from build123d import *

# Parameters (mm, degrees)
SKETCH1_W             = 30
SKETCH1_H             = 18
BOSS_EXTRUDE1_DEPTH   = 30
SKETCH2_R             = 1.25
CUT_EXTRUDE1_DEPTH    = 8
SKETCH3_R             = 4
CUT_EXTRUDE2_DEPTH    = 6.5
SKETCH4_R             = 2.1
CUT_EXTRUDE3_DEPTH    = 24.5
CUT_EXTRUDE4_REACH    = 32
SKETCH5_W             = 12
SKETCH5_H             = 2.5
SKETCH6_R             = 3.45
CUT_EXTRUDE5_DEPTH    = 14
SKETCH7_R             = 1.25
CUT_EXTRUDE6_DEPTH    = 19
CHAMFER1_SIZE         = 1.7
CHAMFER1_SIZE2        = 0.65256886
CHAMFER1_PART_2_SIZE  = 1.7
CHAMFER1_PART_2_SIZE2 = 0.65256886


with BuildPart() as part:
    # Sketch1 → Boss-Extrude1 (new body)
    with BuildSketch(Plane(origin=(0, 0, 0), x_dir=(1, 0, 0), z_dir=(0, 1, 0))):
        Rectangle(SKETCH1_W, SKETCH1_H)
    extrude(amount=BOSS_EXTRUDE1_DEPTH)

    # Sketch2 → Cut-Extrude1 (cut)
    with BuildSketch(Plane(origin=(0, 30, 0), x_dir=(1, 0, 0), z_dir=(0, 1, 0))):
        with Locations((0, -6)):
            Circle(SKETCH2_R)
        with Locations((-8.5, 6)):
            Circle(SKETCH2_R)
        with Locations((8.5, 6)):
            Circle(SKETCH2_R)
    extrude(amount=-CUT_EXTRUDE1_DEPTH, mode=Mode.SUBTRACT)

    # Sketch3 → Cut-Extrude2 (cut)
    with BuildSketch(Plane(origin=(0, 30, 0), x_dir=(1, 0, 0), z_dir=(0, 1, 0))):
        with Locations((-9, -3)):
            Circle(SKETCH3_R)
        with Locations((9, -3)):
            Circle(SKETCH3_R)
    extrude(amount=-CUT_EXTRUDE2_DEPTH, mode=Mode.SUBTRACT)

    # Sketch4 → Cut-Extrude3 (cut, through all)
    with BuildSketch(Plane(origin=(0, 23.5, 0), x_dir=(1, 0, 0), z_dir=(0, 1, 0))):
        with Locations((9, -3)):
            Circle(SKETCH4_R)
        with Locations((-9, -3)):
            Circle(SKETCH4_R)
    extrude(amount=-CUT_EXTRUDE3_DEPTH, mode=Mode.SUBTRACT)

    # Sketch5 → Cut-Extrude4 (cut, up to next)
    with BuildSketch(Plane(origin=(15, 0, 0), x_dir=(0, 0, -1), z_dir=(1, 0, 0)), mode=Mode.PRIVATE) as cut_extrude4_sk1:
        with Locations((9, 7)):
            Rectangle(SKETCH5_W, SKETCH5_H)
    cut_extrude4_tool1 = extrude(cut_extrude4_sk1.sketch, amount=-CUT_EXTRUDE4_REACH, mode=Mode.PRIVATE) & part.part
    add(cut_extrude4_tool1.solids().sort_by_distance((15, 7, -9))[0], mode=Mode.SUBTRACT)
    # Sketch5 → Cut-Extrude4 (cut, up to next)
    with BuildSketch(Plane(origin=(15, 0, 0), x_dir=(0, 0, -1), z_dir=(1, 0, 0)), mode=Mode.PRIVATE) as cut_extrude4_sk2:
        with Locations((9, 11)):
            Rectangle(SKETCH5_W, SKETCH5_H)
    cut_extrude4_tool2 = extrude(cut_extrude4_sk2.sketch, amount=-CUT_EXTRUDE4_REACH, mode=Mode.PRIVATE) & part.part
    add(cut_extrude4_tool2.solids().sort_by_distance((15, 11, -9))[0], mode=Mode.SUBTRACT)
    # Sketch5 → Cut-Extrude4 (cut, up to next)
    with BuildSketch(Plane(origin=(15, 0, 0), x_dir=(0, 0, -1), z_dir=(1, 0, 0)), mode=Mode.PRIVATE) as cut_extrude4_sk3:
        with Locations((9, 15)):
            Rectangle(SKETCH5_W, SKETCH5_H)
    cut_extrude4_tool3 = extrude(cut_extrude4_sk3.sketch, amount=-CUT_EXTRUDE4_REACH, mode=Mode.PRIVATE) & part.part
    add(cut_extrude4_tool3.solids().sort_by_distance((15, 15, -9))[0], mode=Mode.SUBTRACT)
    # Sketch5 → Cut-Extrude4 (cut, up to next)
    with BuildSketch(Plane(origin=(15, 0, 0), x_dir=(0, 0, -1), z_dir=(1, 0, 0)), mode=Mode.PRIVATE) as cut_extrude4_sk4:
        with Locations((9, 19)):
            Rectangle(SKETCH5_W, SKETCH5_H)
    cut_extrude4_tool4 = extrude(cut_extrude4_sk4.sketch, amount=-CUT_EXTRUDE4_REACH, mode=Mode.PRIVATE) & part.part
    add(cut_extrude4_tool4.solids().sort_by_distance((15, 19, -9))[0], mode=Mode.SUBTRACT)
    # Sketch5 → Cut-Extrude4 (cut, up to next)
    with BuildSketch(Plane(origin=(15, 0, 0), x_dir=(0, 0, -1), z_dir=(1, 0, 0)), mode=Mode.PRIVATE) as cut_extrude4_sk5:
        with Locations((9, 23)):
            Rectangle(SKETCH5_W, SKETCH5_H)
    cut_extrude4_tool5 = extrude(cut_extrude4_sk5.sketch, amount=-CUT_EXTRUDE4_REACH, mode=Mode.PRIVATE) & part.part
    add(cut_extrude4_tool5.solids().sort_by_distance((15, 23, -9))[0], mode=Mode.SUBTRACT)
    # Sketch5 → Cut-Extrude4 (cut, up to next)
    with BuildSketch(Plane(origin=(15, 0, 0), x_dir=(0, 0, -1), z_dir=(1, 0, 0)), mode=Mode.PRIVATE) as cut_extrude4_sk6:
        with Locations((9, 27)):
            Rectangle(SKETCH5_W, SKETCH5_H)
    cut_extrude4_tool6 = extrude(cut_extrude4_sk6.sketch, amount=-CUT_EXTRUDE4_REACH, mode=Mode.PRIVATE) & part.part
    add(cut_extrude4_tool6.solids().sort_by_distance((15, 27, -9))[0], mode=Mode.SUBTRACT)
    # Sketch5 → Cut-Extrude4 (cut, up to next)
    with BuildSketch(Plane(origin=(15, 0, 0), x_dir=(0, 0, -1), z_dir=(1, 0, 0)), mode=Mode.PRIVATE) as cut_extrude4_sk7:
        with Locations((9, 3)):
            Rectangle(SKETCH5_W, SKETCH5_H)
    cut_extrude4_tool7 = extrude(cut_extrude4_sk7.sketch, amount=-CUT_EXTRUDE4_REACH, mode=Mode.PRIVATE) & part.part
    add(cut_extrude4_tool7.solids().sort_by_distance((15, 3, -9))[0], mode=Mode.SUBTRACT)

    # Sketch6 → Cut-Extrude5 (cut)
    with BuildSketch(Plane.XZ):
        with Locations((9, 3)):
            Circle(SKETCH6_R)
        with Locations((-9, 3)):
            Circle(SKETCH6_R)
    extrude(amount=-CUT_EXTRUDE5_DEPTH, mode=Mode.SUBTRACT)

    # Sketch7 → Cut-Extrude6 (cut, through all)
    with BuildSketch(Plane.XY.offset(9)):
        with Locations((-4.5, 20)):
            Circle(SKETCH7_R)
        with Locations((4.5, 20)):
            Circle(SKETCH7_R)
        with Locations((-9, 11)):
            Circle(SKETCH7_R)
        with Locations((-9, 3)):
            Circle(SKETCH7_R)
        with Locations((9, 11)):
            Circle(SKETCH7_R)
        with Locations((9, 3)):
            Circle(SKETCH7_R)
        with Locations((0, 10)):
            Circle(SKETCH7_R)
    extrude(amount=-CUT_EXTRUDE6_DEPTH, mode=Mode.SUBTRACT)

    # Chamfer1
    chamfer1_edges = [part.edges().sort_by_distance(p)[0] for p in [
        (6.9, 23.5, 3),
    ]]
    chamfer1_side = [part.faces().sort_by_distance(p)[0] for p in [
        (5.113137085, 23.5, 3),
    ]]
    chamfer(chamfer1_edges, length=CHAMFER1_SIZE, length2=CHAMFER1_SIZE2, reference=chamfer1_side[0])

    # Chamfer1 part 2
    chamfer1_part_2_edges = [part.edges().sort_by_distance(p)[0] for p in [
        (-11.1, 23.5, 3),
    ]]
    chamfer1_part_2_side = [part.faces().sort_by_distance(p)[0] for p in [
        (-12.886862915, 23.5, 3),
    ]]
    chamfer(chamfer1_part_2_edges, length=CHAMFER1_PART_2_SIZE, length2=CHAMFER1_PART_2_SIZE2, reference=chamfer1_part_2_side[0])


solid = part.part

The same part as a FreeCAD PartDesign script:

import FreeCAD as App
import Part
import Sketcher
from FreeCAD import Vector


def edges_at(feature, points):
    """Names of the edges that pass closest to the given points."""
    edges = feature.Shape.Edges
    near = lambda p: min(range(len(edges)), key=lambda i: edges[i].distToShape(Part.Vertex(*p))[0])
    return sorted({f"Edge{near(p) + 1}" for p in points})

doc = App.newDocument("Part")
body = doc.addObject("PartDesign::Body", "Body")

sketch1 = body.newObject("Sketcher::SketchObject", "Sketch")
sketch1.AttachmentSupport = (doc.getObject("XZ_Plane"), [""])
sketch1.MapMode = "FlatFace"
sketch1.addGeometry([
    Part.LineSegment(Vector(-15, -9, 0), Vector(-15, 9, 0)),
    Part.LineSegment(Vector(-15, 9, 0), Vector(15, 9, 0)),
    Part.LineSegment(Vector(15, 9, 0), Vector(15, -9, 0)),
    Part.LineSegment(Vector(15, -9, 0), Vector(-15, -9, 0)),
], False)
sketch1.addConstraint([
    Sketcher.Constraint("Coincident", 0, 2, 1, 1),
    Sketcher.Constraint("Coincident", 1, 2, 2, 1),
    Sketcher.Constraint("Coincident", 2, 2, 3, 1),
    Sketcher.Constraint("Coincident", 3, 2, 0, 1),
    Sketcher.Constraint("Vertical", 0),
    Sketcher.Constraint("Horizontal", 1),
    Sketcher.Constraint("Vertical", 2),
    Sketcher.Constraint("Horizontal", 3),
    Sketcher.Constraint("Symmetric", 0, 2, 2, 2, -1, 1),
    Sketcher.Constraint("DistanceX", 1, 1, 1, 2, 30.0),
    Sketcher.Constraint("DistanceY", 0, 1, 0, 2, 18.0),
])
pad1 = body.newObject("PartDesign::Pad", "Pad")
pad1.Profile = sketch1
pad1.Length = 30
pad1.Reversed = True

sketch2 = body.newObject("Sketcher::SketchObject", "Sketch001")
sketch2.AttachmentSupport = (doc.getObject("XZ_Plane"), [""])
sketch2.MapMode = "FlatFace"
sketch2.AttachmentOffset = App.Placement(Vector(0, 0, -30), App.Rotation())
sketch2.addGeometry([
    Part.Circle(Vector(0, 6, 0), Vector(0, 0, 1), 1.2),
    Part.Circle(Vector(-8.5, -6, 0), Vector(0, 0, 1), 1.2),
    Part.Circle(Vector(8.5, -6, 0), Vector(0, 0, 1), 1.2),
], False)
sketch2.addConstraint([
    Sketcher.Constraint("Equal", 0, 1),
    Sketcher.Constraint("Equal", 1, 2),
    Sketcher.Constraint("Symmetric", 1, 3, 2, 3, -2),
    Sketcher.Constraint("PointOnObject", 0, 3, -2),
    Sketcher.Constraint("Diameter", 0, 2.5),
    Sketcher.Constraint("DistanceY", -1, 1, 0, 3, 6.0),
    Sketcher.Constraint("DistanceY", 1, 3, -1, 1, 6.0),
    Sketcher.Constraint("DistanceX", 1, 3, 2, 3, 17.0),
])
pocket1 = body.newObject("PartDesign::Pocket", "Pocket")
pocket1.Profile = sketch2
pocket1.Length = 8
pocket1.Reversed = True

sketch3 = body.newObject("Sketcher::SketchObject", "Sketch002")
sketch3.AttachmentSupport = (doc.getObject("XZ_Plane"), [""])
sketch3.MapMode = "FlatFace"
sketch3.AttachmentOffset = App.Placement(Vector(0, 0, -30), App.Rotation())
sketch3.addGeometry([
    Part.Circle(Vector(-9, 3, 0), Vector(0, 0, 1), 4),
    Part.Circle(Vector(9, 3, 0), Vector(0, 0, 1), 4),
], False)
sketch3.addConstraint([
    Sketcher.Constraint("Equal", 0, 1),
    Sketcher.Constraint("Symmetric", 0, 3, 1, 3, -2),
    Sketcher.Constraint("Diameter", 0, 8.0),
    Sketcher.Constraint("DistanceX", 0, 3, -1, 1, 9.0),
    Sketcher.Constraint("DistanceY", -1, 1, 0, 3, 3.0),
])
pocket2 = body.newObject("PartDesign::Pocket", "Pocket001")
pocket2.Profile = sketch3
pocket2.Length = 6.5
pocket2.Reversed = True

sketch4 = body.newObject("Sketcher::SketchObject", "Sketch003")
sketch4.AttachmentSupport = (doc.getObject("XZ_Plane"), [""])
sketch4.MapMode = "FlatFace"
sketch4.AttachmentOffset = App.Placement(Vector(0, 0, -23.5), App.Rotation())
sketch4.addGeometry([
    Part.Circle(Vector(9, 3, 0), Vector(0, 0, 1), 2.1),
    Part.Circle(Vector(-9, 3, 0), Vector(0, 0, 1), 2.1),
], False)
sketch4.addConstraint([
    Sketcher.Constraint("Equal", 0, 1),
    Sketcher.Constraint("Symmetric", 0, 3, 1, 3, -2),
    Sketcher.Constraint("Diameter", 0, 4.2),
    Sketcher.Constraint("DistanceX", -1, 1, 0, 3, 9.0),
    Sketcher.Constraint("DistanceY", -1, 1, 0, 3, 3.0),
])
pocket3 = body.newObject("PartDesign::Pocket", "Pocket002")
pocket3.Profile = sketch4
pocket3.Type = "ThroughAll"
pocket3.Reversed = True

sketch5 = body.newObject("Sketcher::SketchObject", "Sketch004")
sketch5.AttachmentSupport = (doc.getObject("YZ_Plane"), [""])
sketch5.MapMode = "FlatFace"
sketch5.AttachmentOffset = App.Placement(Vector(0, 0, 15), App.Rotation())
sketch5.addGeometry([
    Part.LineSegment(Vector(8.2, -3, 0), Vector(5.8, -3, 0)),
    Part.LineSegment(Vector(5.8, -3, 0), Vector(5.8, -15, 0)),
    Part.LineSegment(Vector(5.8, -15, 0), Vector(8.2, -15, 0)),
    Part.LineSegment(Vector(8.2, -15, 0), Vector(8.2, -3, 0)),
], False)
sketch5.addConstraint([
    Sketcher.Constraint("Coincident", 0, 2, 1, 1),
    Sketcher.Constraint("Coincident", 1, 2, 2, 1),
    Sketcher.Constraint("Coincident", 2, 2, 3, 1),
    Sketcher.Constraint("Coincident", 3, 2, 0, 1),
    Sketcher.Constraint("Horizontal", 0),
    Sketcher.Constraint("Vertical", 1),
    Sketcher.Constraint("Horizontal", 2),
    Sketcher.Constraint("Vertical", 3),
    Sketcher.Constraint("DistanceY", 1, 2, 1, 1, 12.0),
    Sketcher.Constraint("DistanceX", 0, 2, 0, 1, 2.5),
    Sketcher.Constraint("DistanceY", 0, 2, -1, 1, 3.0),
    Sketcher.Constraint("DistanceX", -1, 1, 0, 2, 5.75),
])
pocket4 = body.newObject("PartDesign::Pocket", "Pocket003")
pocket4.Profile = sketch5
pocket4.Type = "UpToFirst"

sketch6 = body.newObject("Sketcher::SketchObject", "Sketch005")
sketch6.AttachmentSupport = (doc.getObject("YZ_Plane"), [""])
sketch6.MapMode = "FlatFace"
sketch6.AttachmentOffset = App.Placement(Vector(0, 0, 15), App.Rotation())
sketch6.addGeometry([
    Part.LineSegment(Vector(12.2, -3, 0), Vector(9.8, -3, 0)),
    Part.LineSegment(Vector(9.8, -3, 0), Vector(9.8, -15, 0)),
    Part.LineSegment(Vector(9.8, -15, 0), Vector(12.2, -15, 0)),
    Part.LineSegment(Vector(12.2, -15, 0), Vector(12.2, -3, 0)),
], False)
sketch6.addConstraint([
    Sketcher.Constraint("Coincident", 0, 2, 1, 1),
    Sketcher.Constraint("Coincident", 1, 2, 2, 1),
    Sketcher.Constraint("Coincident", 2, 2, 3, 1),
    Sketcher.Constraint("Coincident", 3, 2, 0, 1),
    Sketcher.Constraint("Horizontal", 0),
    Sketcher.Constraint("Vertical", 1),
    Sketcher.Constraint("Horizontal", 2),
    Sketcher.Constraint("Vertical", 3),
    Sketcher.Constraint("DistanceY", 1, 2, 1, 1, 12.0),
    Sketcher.Constraint("DistanceX", 0, 2, 0, 1, 2.5),
    Sketcher.Constraint("DistanceY", 0, 2, -1, 1, 3.0),
    Sketcher.Constraint("DistanceX", -1, 1, 0, 2, 9.75),
])
pocket5 = body.newObject("PartDesign::Pocket", "Pocket004")
pocket5.Profile = sketch6
pocket5.Type = "UpToFirst"

sketch7 = body.newObject("Sketcher::SketchObject", "Sketch006")
sketch7.AttachmentSupport = (doc.getObject("YZ_Plane"), [""])
sketch7.MapMode = "FlatFace"
sketch7.AttachmentOffset = App.Placement(Vector(0, 0, 15), App.Rotation())
sketch7.addGeometry([
    Part.LineSegment(Vector(16.2, -3, 0), Vector(13.8, -3, 0)),
    Part.LineSegment(Vector(13.8, -3, 0), Vector(13.8, -15, 0)),
    Part.LineSegment(Vector(13.8, -15, 0), Vector(16.2, -15, 0)),
    Part.LineSegment(Vector(16.2, -15, 0), Vector(16.2, -3, 0)),
], False)
sketch7.addConstraint([
    Sketcher.Constraint("Coincident", 0, 2, 1, 1),
    Sketcher.Constraint("Coincident", 1, 2, 2, 1),
    Sketcher.Constraint("Coincident", 2, 2, 3, 1),
    Sketcher.Constraint("Coincident", 3, 2, 0, 1),
    Sketcher.Constraint("Horizontal", 0),
    Sketcher.Constraint("Vertical", 1),
    Sketcher.Constraint("Horizontal", 2),
    Sketcher.Constraint("Vertical", 3),
    Sketcher.Constraint("DistanceY", 1, 2, 1, 1, 12.0),
    Sketcher.Constraint("DistanceX", 0, 2, 0, 1, 2.5),
    Sketcher.Constraint("DistanceY", 0, 2, -1, 1, 3.0),
    Sketcher.Constraint("DistanceX", -1, 1, 0, 2, 13.75),
])
pocket6 = body.newObject("PartDesign::Pocket", "Pocket005")
pocket6.Profile = sketch7
pocket6.Type = "UpToFirst"

sketch8 = body.newObject("Sketcher::SketchObject", "Sketch007")
sketch8.AttachmentSupport = (doc.getObject("YZ_Plane"), [""])
sketch8.MapMode = "FlatFace"
sketch8.AttachmentOffset = App.Placement(Vector(0, 0, 15), App.Rotation())
sketch8.addGeometry([
    Part.LineSegment(Vector(20.2, -3, 0), Vector(17.8, -3, 0)),
    Part.LineSegment(Vector(17.8, -3, 0), Vector(17.8, -15, 0)),
    Part.LineSegment(Vector(17.8, -15, 0), Vector(20.2, -15, 0)),
    Part.LineSegment(Vector(20.2, -15, 0), Vector(20.2, -3, 0)),
], False)
sketch8.addConstraint([
    Sketcher.Constraint("Coincident", 0, 2, 1, 1),
    Sketcher.Constraint("Coincident", 1, 2, 2, 1),
    Sketcher.Constraint("Coincident", 2, 2, 3, 1),
    Sketcher.Constraint("Coincident", 3, 2, 0, 1),
    Sketcher.Constraint("Horizontal", 0),
    Sketcher.Constraint("Vertical", 1),
    Sketcher.Constraint("Horizontal", 2),
    Sketcher.Constraint("Vertical", 3),
    Sketcher.Constraint("DistanceY", 1, 2, 1, 1, 12.0),
    Sketcher.Constraint("DistanceX", 0, 2, 0, 1, 2.5),
    Sketcher.Constraint("DistanceY", 0, 2, -1, 1, 3.0),
    Sketcher.Constraint("DistanceX", -1, 1, 0, 2, 17.75),
])
pocket7 = body.newObject("PartDesign::Pocket", "Pocket006")
pocket7.Profile = sketch8
pocket7.Type = "UpToFirst"

sketch9 = body.newObject("Sketcher::SketchObject", "Sketch008")
sketch9.AttachmentSupport = (doc.getObject("YZ_Plane"), [""])
sketch9.MapMode = "FlatFace"
sketch9.AttachmentOffset = App.Placement(Vector(0, 0, 15), App.Rotation())
sketch9.addGeometry([
    Part.LineSegment(Vector(24.2, -3, 0), Vector(21.8, -3, 0)),
    Part.LineSegment(Vector(21.8, -3, 0), Vector(21.8, -15, 0)),
    Part.LineSegment(Vector(21.8, -15, 0), Vector(24.2, -15, 0)),
    Part.LineSegment(Vector(24.2, -15, 0), Vector(24.2, -3, 0)),
], False)
sketch9.addConstraint([
    Sketcher.Constraint("Coincident", 0, 2, 1, 1),
    Sketcher.Constraint("Coincident", 1, 2, 2, 1),
    Sketcher.Constraint("Coincident", 2, 2, 3, 1),
    Sketcher.Constraint("Coincident", 3, 2, 0, 1),
    Sketcher.Constraint("Horizontal", 0),
    Sketcher.Constraint("Vertical", 1),
    Sketcher.Constraint("Horizontal", 2),
    Sketcher.Constraint("Vertical", 3),
    Sketcher.Constraint("DistanceY", 1, 2, 1, 1, 12.0),
    Sketcher.Constraint("DistanceX", 0, 2, 0, 1, 2.5),
    Sketcher.Constraint("DistanceY", 0, 2, -1, 1, 3.0),
    Sketcher.Constraint("DistanceX", -1, 1, 0, 2, 21.75),
])
pocket8 = body.newObject("PartDesign::Pocket", "Pocket007")
pocket8.Profile = sketch9
pocket8.Type = "UpToFirst"

sketch10 = body.newObject("Sketcher::SketchObject", "Sketch009")
sketch10.AttachmentSupport = (doc.getObject("YZ_Plane"), [""])
sketch10.MapMode = "FlatFace"
sketch10.AttachmentOffset = App.Placement(Vector(0, 0, 15), App.Rotation())
sketch10.addGeometry([
    Part.LineSegment(Vector(28.2, -3, 0), Vector(25.8, -3, 0)),
    Part.LineSegment(Vector(25.8, -3, 0), Vector(25.8, -15, 0)),
    Part.LineSegment(Vector(25.8, -15, 0), Vector(28.2, -15, 0)),
    Part.LineSegment(Vector(28.2, -15, 0), Vector(28.2, -3, 0)),
], False)
sketch10.addConstraint([
    Sketcher.Constraint("Coincident", 0, 2, 1, 1),
    Sketcher.Constraint("Coincident", 1, 2, 2, 1),
    Sketcher.Constraint("Coincident", 2, 2, 3, 1),
    Sketcher.Constraint("Coincident", 3, 2, 0, 1),
    Sketcher.Constraint("Horizontal", 0),
    Sketcher.Constraint("Vertical", 1),
    Sketcher.Constraint("Horizontal", 2),
    Sketcher.Constraint("Vertical", 3),
    Sketcher.Constraint("DistanceY", 1, 2, 1, 1, 12.0),
    Sketcher.Constraint("DistanceX", 0, 2, 0, 1, 2.5),
    Sketcher.Constraint("DistanceY", 0, 2, -1, 1, 3.0),
    Sketcher.Constraint("DistanceX", -1, 1, 0, 2, 25.75),
])
pocket9 = body.newObject("PartDesign::Pocket", "Pocket008")
pocket9.Profile = sketch10
pocket9.Type = "UpToFirst"

sketch11 = body.newObject("Sketcher::SketchObject", "Sketch010")
sketch11.AttachmentSupport = (doc.getObject("YZ_Plane"), [""])
sketch11.MapMode = "FlatFace"
sketch11.AttachmentOffset = App.Placement(Vector(0, 0, 15), App.Rotation())
sketch11.addGeometry([
    Part.LineSegment(Vector(4.2, -3, 0), Vector(1.8, -3, 0)),
    Part.LineSegment(Vector(1.8, -3, 0), Vector(1.8, -15, 0)),
    Part.LineSegment(Vector(1.8, -15, 0), Vector(4.2, -15, 0)),
    Part.LineSegment(Vector(4.2, -15, 0), Vector(4.2, -3, 0)),
], False)
sketch11.addConstraint([
    Sketcher.Constraint("Coincident", 0, 2, 1, 1),
    Sketcher.Constraint("Coincident", 1, 2, 2, 1),
    Sketcher.Constraint("Coincident", 2, 2, 3, 1),
    Sketcher.Constraint("Coincident", 3, 2, 0, 1),
    Sketcher.Constraint("Horizontal", 0),
    Sketcher.Constraint("Vertical", 1),
    Sketcher.Constraint("Horizontal", 2),
    Sketcher.Constraint("Vertical", 3),
    Sketcher.Constraint("DistanceY", 1, 2, 1, 1, 12.0),
    Sketcher.Constraint("DistanceX", 0, 2, 0, 1, 2.5),
    Sketcher.Constraint("DistanceY", 0, 2, -1, 1, 3.0),
    Sketcher.Constraint("DistanceX", -1, 1, 0, 2, 1.75),
])
pocket10 = body.newObject("PartDesign::Pocket", "Pocket009")
pocket10.Profile = sketch11
pocket10.Type = "UpToFirst"

sketch12 = body.newObject("Sketcher::SketchObject", "Sketch011")
sketch12.AttachmentSupport = (doc.getObject("XZ_Plane"), [""])
sketch12.MapMode = "FlatFace"
sketch12.addGeometry([
    Part.Circle(Vector(9, 3, 0), Vector(0, 0, 1), 3.5),
    Part.Circle(Vector(-9, 3, 0), Vector(0, 0, 1), 3.5),
], False)
sketch12.addConstraint([
    Sketcher.Constraint("Equal", 0, 1),
    Sketcher.Constraint("Symmetric", 0, 3, 1, 3, -2),
    Sketcher.Constraint("Diameter", 0, 6.9),
    Sketcher.Constraint("DistanceX", -1, 1, 0, 3, 9.0),
    Sketcher.Constraint("DistanceY", -1, 1, 0, 3, 3.0),
])
pocket11 = body.newObject("PartDesign::Pocket", "Pocket010")
pocket11.Profile = sketch12
pocket11.Length = 14

sketch13 = body.newObject("Sketcher::SketchObject", "Sketch012")
sketch13.AttachmentSupport = (doc.getObject("XY_Plane"), [""])
sketch13.MapMode = "FlatFace"
sketch13.AttachmentOffset = App.Placement(Vector(0, 0, 9), App.Rotation())
sketch13.addGeometry([
    Part.Circle(Vector(-4.5, 20, 0), Vector(0, 0, 1), 1.2),
    Part.Circle(Vector(4.5, 20, 0), Vector(0, 0, 1), 1.2),
    Part.Circle(Vector(-9, 11, 0), Vector(0, 0, 1), 1.2),
    Part.Circle(Vector(-9, 3, 0), Vector(0, 0, 1), 1.2),
    Part.Circle(Vector(9, 11, 0), Vector(0, 0, 1), 1.2),
    Part.Circle(Vector(9, 3, 0), Vector(0, 0, 1), 1.2),
    Part.Circle(Vector(0, 10, 0), Vector(0, 0, 1), 1.2),
], False)
sketch13.addConstraint([
    Sketcher.Constraint("Equal", 0, 1),
    Sketcher.Constraint("Equal", 1, 2),
    Sketcher.Constraint("Equal", 2, 3),
    Sketcher.Constraint("Equal", 3, 4),
    Sketcher.Constraint("Equal", 4, 5),
    Sketcher.Constraint("Equal", 5, 6),
    Sketcher.Constraint("Symmetric", 0, 3, 1, 3, -2),
    Sketcher.Constraint("Symmetric", 2, 3, 4, 3, -2),
    Sketcher.Constraint("Symmetric", 3, 3, 5, 3, -2),
    Sketcher.Constraint("PointOnObject", 6, 3, -2),
    Sketcher.Constraint("Vertical", 2, 3, 3, 3),
    Sketcher.Constraint("Diameter", 0, 2.5),
    Sketcher.Constraint("DistanceY", -1, 1, 0, 3, 20.0),
    Sketcher.Constraint("DistanceX", 2, 3, -1, 1, 9.0),
    Sketcher.Constraint("DistanceY", -1, 1, 2, 3, 11.0),
    Sketcher.Constraint("DistanceY", -1, 1, 3, 3, 3.0),
    Sketcher.Constraint("DistanceY", -1, 1, 6, 3, 10.0),
    Sketcher.Constraint("DistanceX", 0, 3, 1, 3, 9.0),
])
pocket12 = body.newObject("PartDesign::Pocket", "Pocket011")
pocket12.Profile = sketch13
pocket12.Type = "ThroughAll"
doc.recompute()

chamfer = body.newObject("PartDesign::Chamfer", "Chamfer")
chamfer.Base = (pocket12, edges_at(pocket12, [(6.9, 23.5, 3)]))
chamfer.ChamferType = "Two distances"
chamfer.Size = 1.7
chamfer.Size2 = 0.652569
doc.recompute()

chamfer2 = body.newObject("PartDesign::Chamfer", "Chamfer001")
chamfer2.Base = (chamfer, edges_at(chamfer, [(-11.1, 23.5, 3)]))
chamfer2.ChamferType = "Two distances"
chamfer2.Size = 1.7
chamfer2.Size2 = 0.652569

doc.recompute()
